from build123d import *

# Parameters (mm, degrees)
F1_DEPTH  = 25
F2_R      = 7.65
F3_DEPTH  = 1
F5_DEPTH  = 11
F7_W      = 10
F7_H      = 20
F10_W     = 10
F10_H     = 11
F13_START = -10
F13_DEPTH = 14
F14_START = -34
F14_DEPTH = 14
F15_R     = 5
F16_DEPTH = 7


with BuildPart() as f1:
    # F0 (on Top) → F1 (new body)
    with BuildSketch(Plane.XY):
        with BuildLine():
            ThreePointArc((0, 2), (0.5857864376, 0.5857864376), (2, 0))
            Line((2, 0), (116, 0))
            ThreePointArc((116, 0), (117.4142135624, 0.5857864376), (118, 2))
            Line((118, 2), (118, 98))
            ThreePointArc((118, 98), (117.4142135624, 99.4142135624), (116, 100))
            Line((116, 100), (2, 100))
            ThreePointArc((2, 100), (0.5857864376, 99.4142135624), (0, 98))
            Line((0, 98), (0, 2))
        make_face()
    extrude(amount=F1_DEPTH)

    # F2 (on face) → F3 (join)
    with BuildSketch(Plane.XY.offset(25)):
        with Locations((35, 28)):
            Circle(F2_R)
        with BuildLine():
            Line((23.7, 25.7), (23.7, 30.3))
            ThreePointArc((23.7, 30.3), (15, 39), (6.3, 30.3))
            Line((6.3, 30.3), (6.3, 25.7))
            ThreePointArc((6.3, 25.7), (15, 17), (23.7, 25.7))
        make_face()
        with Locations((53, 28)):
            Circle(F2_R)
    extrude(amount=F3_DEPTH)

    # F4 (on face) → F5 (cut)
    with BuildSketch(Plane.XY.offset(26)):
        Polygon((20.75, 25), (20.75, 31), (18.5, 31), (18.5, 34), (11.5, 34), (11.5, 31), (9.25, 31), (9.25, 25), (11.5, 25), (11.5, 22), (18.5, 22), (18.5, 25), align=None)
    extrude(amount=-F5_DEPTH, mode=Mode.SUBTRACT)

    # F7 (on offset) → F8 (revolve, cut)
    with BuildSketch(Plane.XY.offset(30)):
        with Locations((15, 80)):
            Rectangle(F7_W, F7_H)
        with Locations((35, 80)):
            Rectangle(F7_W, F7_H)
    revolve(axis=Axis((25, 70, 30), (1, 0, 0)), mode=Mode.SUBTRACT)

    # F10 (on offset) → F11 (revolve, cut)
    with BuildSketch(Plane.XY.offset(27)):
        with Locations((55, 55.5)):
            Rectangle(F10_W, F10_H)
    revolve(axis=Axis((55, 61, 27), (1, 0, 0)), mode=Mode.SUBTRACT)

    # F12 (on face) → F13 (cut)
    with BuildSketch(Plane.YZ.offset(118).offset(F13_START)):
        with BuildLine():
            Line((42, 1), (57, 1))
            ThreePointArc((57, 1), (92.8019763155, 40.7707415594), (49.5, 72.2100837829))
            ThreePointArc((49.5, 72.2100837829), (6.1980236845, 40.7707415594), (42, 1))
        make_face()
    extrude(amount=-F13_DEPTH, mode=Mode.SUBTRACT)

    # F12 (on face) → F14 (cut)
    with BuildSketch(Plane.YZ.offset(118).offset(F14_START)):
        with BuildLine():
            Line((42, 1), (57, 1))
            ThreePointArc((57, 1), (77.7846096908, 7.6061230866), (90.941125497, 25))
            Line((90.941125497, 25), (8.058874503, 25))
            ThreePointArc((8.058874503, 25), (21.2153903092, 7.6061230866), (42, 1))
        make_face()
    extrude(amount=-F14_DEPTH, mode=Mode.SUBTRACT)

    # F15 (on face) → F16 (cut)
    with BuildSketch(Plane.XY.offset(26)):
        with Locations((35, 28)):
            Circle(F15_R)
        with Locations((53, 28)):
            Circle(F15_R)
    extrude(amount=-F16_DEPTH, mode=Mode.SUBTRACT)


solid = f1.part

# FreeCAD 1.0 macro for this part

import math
import FreeCAD as App
import Part
import Sketcher

V = App.Vector


def add_polygon(sketch, points):
    """Adds a closed chain of lines whose ends are joined by coincident constraints."""
    first, n = sketch.GeometryCount, len(points)
    for a, b in zip(points, points[1:] + points[:1]):
        sketch.addGeometry(Part.LineSegment(App.Vector(*a, 0), App.Vector(*b, 0)), False)
    for i in range(n):
        sketch.addConstraint(Sketcher.Constraint("Coincident", first + i, 2, first + (i + 1) % n, 1))

doc = App.newDocument("Part")
params = doc.addObject("Spreadsheet::Sheet", "Params")
for row, (alias, value) in enumerate([
    ("sketch1_radius", "2 mm"),
    ("sketch1_width", "114 mm"),
    ("sketch1_height", "96 mm"),
    ("pad1_length", "25 mm"),
    ("sketch2_diameter", "15.3 mm"),
    ("sketch2_radius", "8.7 mm"),
    ("sketch2_height", "4.6 mm"),
    ("pad2_length", "1 mm"),
    ("sketch3_width", "7 mm"),
    ("sketch3_height", "6 mm"),
    ("sketch3_height2", "3 mm"),
    ("sketch3_width2", "2.25 mm"),
    ("pocket1_length", "11 mm"),
    ("sketch4_width", "10 mm"),
    ("sketch4_width2", "30 mm"),
    ("sketch4_height", "20 mm"),
    ("groove_angle", "360 deg"),
    ("sketch5_width", "10 mm"),
    ("sketch5_height", "11 mm"),
    ("groove2_angle", "360 deg"),
    ("sketch6_radius", "36 mm"),
    ("sketch6_width", "15 mm"),
    ("pocket2_length", "14 mm"),
    ("sketch7_radius", "36 mm"),
    ("sketch7_width", "15 mm"),
    ("pocket3_length", "14 mm"),
    ("sketch8_diameter", "10 mm"),
    ("pocket4_length", "7 mm"),
], start=1):
    params.set(f"A{row}", alias)
    params.set(f"B{row}", "=" + value)
    params.setAlias(f"B{row}", alias)

body = doc.addObject("PartDesign::Body", "Body")

sketch1 = body.newObject("Sketcher::SketchObject", "Sketch")
sketch1.AttachmentSupport = (doc.getObject("XY_Plane"), [""])
sketch1.MapMode = "FlatFace"
sketch1.addGeometry(Part.ArcOfCircle(Part.Circle(V(2, 2, 0), V(0, 0, 1), 2), math.radians(180), math.radians(270)), False)
sketch1.addGeometry(Part.LineSegment(V(2, 0, 0), V(116, 0, 0)), False)
sketch1.addGeometry(Part.ArcOfCircle(Part.Circle(V(116, 2, 0), V(0, 0, 1), 2), math.radians(-90), math.radians(0)), False)
sketch1.addGeometry(Part.LineSegment(V(118, 2, 0), V(118, 98, 0)), False)
sketch1.addGeometry(Part.ArcOfCircle(Part.Circle(V(116, 98, 0), V(0, 0, 1), 2), math.radians(0), math.radians(90)), False)
sketch1.addGeometry(Part.LineSegment(V(116, 100, 0), V(2, 100, 0)), False)
sketch1.addGeometry(Part.ArcOfCircle(Part.Circle(V(2, 98, 0), V(0, 0, 1), 2), math.radians(90), math.radians(180)), False)
sketch1.addGeometry(Part.LineSegment(V(0, 98, 0), V(0, 2, 0)), False)
sketch1.addConstraint(Sketcher.Constraint("Tangent", 0, 2, 1, 1))
sketch1.addConstraint(Sketcher.Constraint("Tangent", 1, 2, 2, 1))
sketch1.addConstraint(Sketcher.Constraint("Tangent", 2, 2, 3, 1))
sketch1.addConstraint(Sketcher.Constraint("Tangent", 3, 2, 4, 1))
sketch1.addConstraint(Sketcher.Constraint("Tangent", 4, 2, 5, 1))
sketch1.addConstraint(Sketcher.Constraint("Tangent", 5, 2, 6, 1))
sketch1.addConstraint(Sketcher.Constraint("Tangent", 6, 2, 7, 1))
sketch1.addConstraint(Sketcher.Constraint("Tangent", 7, 2, 0, 1))
sketch1.addConstraint(Sketcher.Constraint("Horizontal", 1))
sketch1.addConstraint(Sketcher.Constraint("Vertical", 3))
sketch1.addConstraint(Sketcher.Constraint("Horizontal", 5))
sketch1.addConstraint(Sketcher.Constraint("Vertical", 7))
sketch1.addConstraint(Sketcher.Constraint("Equal", 0, 2))
sketch1.addConstraint(Sketcher.Constraint("Equal", 2, 4))
sketch1.addConstraint(Sketcher.Constraint("Equal", 4, 6))
sketch1.addConstraint(Sketcher.Constraint("PointOnObject", 0, 2, -1))
sketch1.addConstraint(Sketcher.Constraint("PointOnObject", 6, 2, -2))
sketch1.addConstraint(Sketcher.Constraint("Radius", 0, 2.0))
sketch1.addConstraint(Sketcher.Constraint("DistanceX", 1, 1, 1, 2, 114.0))
sketch1.addConstraint(Sketcher.Constraint("DistanceY", 3, 1, 3, 2, 96.0))
sketch1.setExpression("Constraints[17]", "Params.sketch1_radius")
sketch1.setExpression("Constraints[18]", "Params.sketch1_width")
sketch1.setExpression("Constraints[19]", "Params.sketch1_height")
pad1 = body.newObject("PartDesign::Pad", "Pad")
pad1.Profile = sketch1
pad1.setExpression("Length", "Params.pad1_length")

sketch2 = body.newObject("Sketcher::SketchObject", "Sketch001")
sketch2.AttachmentSupport = (doc.getObject("XY_Plane"), [""])
sketch2.MapMode = "FlatFace"
sketch2.AttachmentOffset = App.Placement(V(0, 0, 25), App.Rotation())
sketch2.addGeometry(Part.Circle(V(35, 28, 0), V(0, 0, 1), 7.65), False)
sketch2.addGeometry(Part.LineSegment(V(23.7, 25.7, 0), V(23.7, 30.3, 0)), False)
sketch2.addGeometry(Part.ArcOfCircle(Part.Circle(V(15, 30.3, 0), V(0, 0, 1), 8.7), math.radians(0), math.radians(180)), False)
sketch2.addGeometry(Part.LineSegment(V(6.3, 30.3, 0), V(6.3, 25.7, 0)), False)
sketch2.addGeometry(Part.ArcOfCircle(Part.Circle(V(15, 25.7, 0), V(0, 0, 1), 8.7), math.radians(180), math.radians(360)), False)
sketch2.addGeometry(Part.Circle(V(53, 28, 0), V(0, 0, 1), 7.65), False)
sketch2.addConstraint(Sketcher.Constraint("Tangent", 1, 2, 2, 1))
sketch2.addConstraint(Sketcher.Constraint("Tangent", 2, 2, 3, 1))
sketch2.addConstraint(Sketcher.Constraint("Tangent", 3, 2, 4, 1))
sketch2.addConstraint(Sketcher.Constraint("Tangent", 4, 2, 1, 1))
sketch2.addConstraint(Sketcher.Constraint("Vertical", 1))
sketch2.addConstraint(Sketcher.Constraint("Vertical", 3))
sketch2.addConstraint(Sketcher.Constraint("Equal", 0, 5))
sketch2.addConstraint(Sketcher.Constraint("Horizontal", 0, 3, 5, 3))
sketch2.addConstraint(Sketcher.Constraint("Diameter", 0, 15.3))
sketch2.addConstraint(Sketcher.Constraint("Radius", 2, 8.7))
sketch2.addConstraint(Sketcher.Constraint("DistanceY", 1, 1, 1, 2, 4.6))
sketch2.addConstraint(Sketcher.Constraint("DistanceX", -1, 1, 0, 3, 35.0))
sketch2.addConstraint(Sketcher.Constraint("DistanceY", -1, 1, 0, 3, 28.0))
sketch2.addConstraint(Sketcher.Constraint("DistanceX", -1, 1, 2, 3, 15.0))
sketch2.addConstraint(Sketcher.Constraint("DistanceX", -1, 1, 5, 3, 53.0))
sketch2.addConstraint(Sketcher.Constraint("DistanceY", -1, 1, 2, 3, 30.3))
sketch2.setExpression("Constraints[8]", "Params.sketch2_diameter")
sketch2.setExpression("Constraints[9]", "Params.sketch2_radius")
sketch2.setExpression("Constraints[10]", "Params.sketch2_height")
pad2 = body.newObject("PartDesign::Pad", "Pad001")
pad2.Profile = sketch2
pad2.setExpression("Length", "Params.pad2_length")

sketch3 = body.newObject("Sketcher::SketchObject", "Sketch002")
sketch3.AttachmentSupport = (doc.getObject("XY_Plane"), [""])
sketch3.MapMode = "FlatFace"
sketch3.AttachmentOffset = App.Placement(V(0, 0, 26), App.Rotation())
add_polygon(sketch3, [(20.75, 25), (20.75, 31), (18.5, 31), (18.5, 34), (11.5, 34), (11.5, 31), (9.25, 31), (9.25, 25), (11.5, 25), (11.5, 22), (18.5, 22), (18.5, 25)])
sketch3.addConstraint(Sketcher.Constraint("Vertical", 0))
sketch3.addConstraint(Sketcher.Constraint("Horizontal", 1))
sketch3.addConstraint(Sketcher.Constraint("Vertical", 2))
sketch3.addConstraint(Sketcher.Constraint("Horizontal", 3))
sketch3.addConstraint(Sketcher.Constraint("Vertical", 4))
sketch3.addConstraint(Sketcher.Constraint("Horizontal", 5))
sketch3.addConstraint(Sketcher.Constraint("Vertical", 6))
sketch3.addConstraint(Sketcher.Constraint("Horizontal", 7))
sketch3.addConstraint(Sketcher.Constraint("Vertical", 8))
sketch3.addConstraint(Sketcher.Constraint("Horizontal", 9))
sketch3.addConstraint(Sketcher.Constraint("Vertical", 10))
sketch3.addConstraint(Sketcher.Constraint("Horizontal", 11))
sketch3.addConstraint(Sketcher.Constraint("Horizontal", 1, 2, 4, 2))
sketch3.addConstraint(Sketcher.Constraint("Horizontal", 7, 2, 10, 2))
sketch3.addConstraint(Sketcher.Constraint("Vertical", 4, 2, 7, 2))
sketch3.addConstraint(Sketcher.Constraint("Vertical", 2, 2, 9, 2))
sketch3.addConstraint(Sketcher.Constraint("Equal", 1, 5))
sketch3.addConstraint(Sketcher.Constraint("Equal", 4, 8))
sketch3.addConstraint(Sketcher.Constraint("DistanceX", 3, 2, 3, 1, 7.0))
sketch3.addConstraint(Sketcher.Constraint("DistanceY", 0, 1, 0, 2, 6.0))
sketch3.addConstraint(Sketcher.Constraint("DistanceY", 2, 1, 2, 2, 3.0))
sketch3.addConstraint(Sketcher.Constraint("DistanceY", -1, 1, 0, 2, 31.0))
sketch3.addConstraint(Sketcher.Constraint("DistanceX", 1, 2, 1, 1, 2.25))
sketch3.addConstraint(Sketcher.Constraint("DistanceX", -1, 1, 1, 2, 18.5))
sketch3.setExpression("Constraints[30]", "Params.sketch3_width")
sketch3.setExpression("Constraints[31]", "Params.sketch3_height")
sketch3.setExpression("Constraints[32]", "Params.sketch3_height2")
sketch3.setExpression("Constraints[34]", "Params.sketch3_width2")
pocket1 = body.newObject("PartDesign::Pocket", "Pocket")
pocket1.Profile = sketch3
pocket1.setExpression("Length", "Params.pocket1_length")

sketch4 = body.newObject("Sketcher::SketchObject", "Sketch003")
sketch4.AttachmentSupport = (doc.getObject("XY_Plane"), [""])
sketch4.MapMode = "FlatFace"
sketch4.AttachmentOffset = App.Placement(V(0, 0, 30), App.Rotation())
add_polygon(sketch4, [(10, 90), (10, 70), (20, 70), (20, 90)])
add_polygon(sketch4, [(30, 90), (30, 70), (40, 70), (40, 90)])
sketch4.addGeometry(Part.LineSegment(V(10, 70, 0), V(40, 70, 0)), True)
sketch4.addConstraint(Sketcher.Constraint("Vertical", 0))
sketch4.addConstraint(Sketcher.Constraint("Horizontal", 1))
sketch4.addConstraint(Sketcher.Constraint("Vertical", 2))
sketch4.addConstraint(Sketcher.Constraint("Horizontal", 3))
sketch4.addConstraint(Sketcher.Constraint("Vertical", 4))
sketch4.addConstraint(Sketcher.Constraint("Horizontal", 5))
sketch4.addConstraint(Sketcher.Constraint("Vertical", 6))
sketch4.addConstraint(Sketcher.Constraint("Horizontal", 7))
sketch4.addConstraint(Sketcher.Constraint("Horizontal", 8))
sketch4.addConstraint(Sketcher.Constraint("Coincident", 8, 1, 0, 2))
sketch4.addConstraint(Sketcher.Constraint("Coincident", 8, 2, 5, 2))
sketch4.addConstraint(Sketcher.Constraint("Horizontal", 3, 2, 6, 2))
sketch4.addConstraint(Sketcher.Constraint("Equal", 3, 5))
sketch4.addConstraint(Sketcher.Constraint("DistanceX", 1, 1, 1, 2, 10.0))
sketch4.addConstraint(Sketcher.Constraint("DistanceX", 8, 1, 8, 2, 30.0))
sketch4.addConstraint(Sketcher.Constraint("DistanceY", 0, 2, 0, 1, 20.0))
sketch4.addConstraint(Sketcher.Constraint("DistanceX", -1, 1, 0, 2, 10.0))
sketch4.addConstraint(Sketcher.Constraint("DistanceY", -1, 1, 0, 2, 70.0))
sketch4.setExpression("Constraints[21]", "Params.sketch4_width")
sketch4.setExpression("Constraints[22]", "Params.sketch4_width2")
sketch4.setExpression("Constraints[23]", "Params.sketch4_height")
groove = body.newObject("PartDesign::Groove", "Groove")
groove.Profile = sketch4
groove.ReferenceAxis = (sketch4, ["Axis0"])
groove.setExpression("Angle", "Params.groove_angle")

sketch5 = body.newObject("Sketcher::SketchObject", "Sketch004")
sketch5.AttachmentSupport = (doc.getObject("XY_Plane"), [""])
sketch5.MapMode = "FlatFace"
sketch5.AttachmentOffset = App.Placement(V(0, 0, 27), App.Rotation())
add_polygon(sketch5, [(50, 61), (50, 50), (60, 50), (60, 61)])
sketch5.addGeometry(Part.LineSegment(V(50, 61, 0), V(60, 61, 0)), True)
sketch5.addConstraint(Sketcher.Constraint("Vertical", 0))
sketch5.addConstraint(Sketcher.Constraint("Horizontal", 1))
sketch5.addConstraint(Sketcher.Constraint("Vertical", 2))
sketch5.addConstraint(Sketcher.Constraint("Horizontal", 3))
sketch5.addConstraint(Sketcher.Constraint("Horizontal", 4))
sketch5.addConstraint(Sketcher.Constraint("Coincident", 4, 1, 3, 2))
sketch5.addConstraint(Sketcher.Constraint("Vertical", 1, 2, 4, 2))
sketch5.addConstraint(Sketcher.Constraint("DistanceX", 1, 1, 1, 2, 10.0))
sketch5.addConstraint(Sketcher.Constraint("DistanceY", 0, 2, 0, 1, 11.0))
sketch5.addConstraint(Sketcher.Constraint("DistanceX", -1, 1, 0, 2, 50.0))
sketch5.addConstraint(Sketcher.Constraint("DistanceY", -1, 1, 0, 2, 50.0))
sketch5.setExpression("Constraints[11]", "Params.sketch5_width")
sketch5.setExpression("Constraints[12]", "Params.sketch5_height")
groove2 = body.newObject("PartDesign::Groove", "Groove001")
groove2.Profile = sketch5
groove2.ReferenceAxis = (sketch5, ["Axis0"])
groove2.setExpression("Angle", "Params.groove2_angle")

sketch6 = body.newObject("Sketcher::SketchObject", "Sketch005")
sketch6.AttachmentSupport = (doc.getObject("YZ_Plane"), [""])
sketch6.MapMode = "FlatFace"
sketch6.AttachmentOffset = App.Placement(V(0, 0, 108), App.Rotation())
sketch6.addGeometry(Part.LineSegment(V(42, 1, 0), V(57, 1, 0)), False)
sketch6.addGeometry(Part.ArcOfCircle(Part.Circle(V(57, 37, 0), V(0, 0, 1), 36), math.radians(-90), math.radians(102.024699)), False)
sketch6.addGeometry(Part.ArcOfCircle(Part.Circle(V(42, 37, 0), V(0, 0, 1), 36), math.radians(77.975301), math.radians(270)), False)
sketch6.addConstraint(Sketcher.Constraint("Tangent", 0, 2, 1, 1))
sketch6.addConstraint(Sketcher.Constraint("Coincident", 1, 2, 2, 1))
sketch6.addConstraint(Sketcher.Constraint("Tangent", 2, 2, 0, 1))
sketch6.addConstraint(Sketcher.Constraint("Horizontal", 0))
sketch6.addConstraint(Sketcher.Constraint("Equal", 1, 2))
sketch6.addConstraint(Sketcher.Constraint("Radius", 1, 36.0))
sketch6.addConstraint(Sketcher.Constraint("DistanceX", 0, 1, 0, 2, 15.0))
sketch6.addConstraint(Sketcher.Constraint("DistanceX", -1, 1, 1, 3, 57.0))
sketch6.addConstraint(Sketcher.Constraint("DistanceY", -1, 1, 1, 3, 37.0))
sketch6.setExpression("Constraints[5]", "Params.sketch6_radius")
sketch6.setExpression("Constraints[6]", "Params.sketch6_width")
pocket2 = body.newObject("PartDesign::Pocket", "Pocket001")
pocket2.Profile = sketch6
pocket2.setExpression("Length", "Params.pocket2_length")

sketch7 = body.newObject("Sketcher::SketchObject", "Sketch006")
sketch7.AttachmentSupport = (doc.getObject("YZ_Plane"), [""])
sketch7.MapMode = "FlatFace"
sketch7.AttachmentOffset = App.Placement(V(0, 0, 84), App.Rotation())
sketch7.addGeometry(Part.LineSegment(V(42, 1, 0), V(57, 1, 0)), False)
sketch7.addGeometry(Part.ArcOfCircle(Part.Circle(V(57, 37, 0), V(0, 0, 1), 36), math.radians(-90), math.radians(-19.471221)), False)
sketch7.addGeometry(Part.LineSegment(V(90.941125, 25, 0), V(8.058875, 25, 0)), False)
sketch7.addGeometry(Part.ArcOfCircle(Part.Circle(V(42, 37, 0), V(0, 0, 1), 36), math.radians(-160.528779), math.radians(-90)), False)
sketch7.addConstraint(Sketcher.Constraint("Tangent", 0, 2, 1, 1))
sketch7.addConstraint(Sketcher.Constraint("Coincident", 1, 2, 2, 1))
sketch7.addConstraint(Sketcher.Constraint("Coincident", 2, 2, 3, 1))
sketch7.addConstraint(Sketcher.Constraint("Tangent", 3, 2, 0, 1))
sketch7.addConstraint(Sketcher.Constraint("Horizontal", 0))
sketch7.addConstraint(Sketcher.Constraint("Horizontal", 2))
sketch7.addConstraint(Sketcher.Constraint("Equal", 1, 3))
sketch7.addConstraint(Sketcher.Constraint("Radius", 1, 36.0))
sketch7.addConstraint(Sketcher.Constraint("DistanceX", 0, 1, 0, 2, 15.0))
sketch7.addConstraint(Sketcher.Constraint("DistanceX", -1, 1, 1, 3, 57.0))
sketch7.addConstraint(Sketcher.Constraint("DistanceY", -1, 1, 1, 3, 37.0))
sketch7.addConstraint(Sketcher.Constraint("DistanceY", -1, 1, 1, 2, 25.0))
sketch7.setExpression("Constraints[7]", "Params.sketch7_radius")
sketch7.setExpression("Constraints[8]", "Params.sketch7_width")
pocket3 = body.newObject("PartDesign::Pocket", "Pocket002")
pocket3.Profile = sketch7
pocket3.setExpression("Length", "Params.pocket3_length")

sketch8 = body.newObject("Sketcher::SketchObject", "Sketch007")
sketch8.AttachmentSupport = (doc.getObject("XY_Plane"), [""])
sketch8.MapMode = "FlatFace"
sketch8.AttachmentOffset = App.Placement(V(0, 0, 26), App.Rotation())
sketch8.addGeometry(Part.Circle(V(35, 28, 0), V(0, 0, 1), 5), False)
sketch8.addGeometry(Part.Circle(V(53, 28, 0), V(0, 0, 1), 5), False)
sketch8.addConstraint(Sketcher.Constraint("Equal", 0, 1))
sketch8.addConstraint(Sketcher.Constraint("Horizontal", 0, 3, 1, 3))
sketch8.addConstraint(Sketcher.Constraint("Diameter", 0, 10.0))
sketch8.addConstraint(Sketcher.Constraint("DistanceX", -1, 1, 0, 3, 35.0))
sketch8.addConstraint(Sketcher.Constraint("DistanceY", -1, 1, 0, 3, 28.0))
sketch8.addConstraint(Sketcher.Constraint("DistanceX", -1, 1, 1, 3, 53.0))
sketch8.setExpression("Constraints[2]", "Params.sketch8_diameter")
pocket4 = body.newObject("PartDesign::Pocket", "Pocket003")
pocket4.Profile = sketch8
pocket4.setExpression("Length", "Params.pocket4_length")

doc.recompute()
